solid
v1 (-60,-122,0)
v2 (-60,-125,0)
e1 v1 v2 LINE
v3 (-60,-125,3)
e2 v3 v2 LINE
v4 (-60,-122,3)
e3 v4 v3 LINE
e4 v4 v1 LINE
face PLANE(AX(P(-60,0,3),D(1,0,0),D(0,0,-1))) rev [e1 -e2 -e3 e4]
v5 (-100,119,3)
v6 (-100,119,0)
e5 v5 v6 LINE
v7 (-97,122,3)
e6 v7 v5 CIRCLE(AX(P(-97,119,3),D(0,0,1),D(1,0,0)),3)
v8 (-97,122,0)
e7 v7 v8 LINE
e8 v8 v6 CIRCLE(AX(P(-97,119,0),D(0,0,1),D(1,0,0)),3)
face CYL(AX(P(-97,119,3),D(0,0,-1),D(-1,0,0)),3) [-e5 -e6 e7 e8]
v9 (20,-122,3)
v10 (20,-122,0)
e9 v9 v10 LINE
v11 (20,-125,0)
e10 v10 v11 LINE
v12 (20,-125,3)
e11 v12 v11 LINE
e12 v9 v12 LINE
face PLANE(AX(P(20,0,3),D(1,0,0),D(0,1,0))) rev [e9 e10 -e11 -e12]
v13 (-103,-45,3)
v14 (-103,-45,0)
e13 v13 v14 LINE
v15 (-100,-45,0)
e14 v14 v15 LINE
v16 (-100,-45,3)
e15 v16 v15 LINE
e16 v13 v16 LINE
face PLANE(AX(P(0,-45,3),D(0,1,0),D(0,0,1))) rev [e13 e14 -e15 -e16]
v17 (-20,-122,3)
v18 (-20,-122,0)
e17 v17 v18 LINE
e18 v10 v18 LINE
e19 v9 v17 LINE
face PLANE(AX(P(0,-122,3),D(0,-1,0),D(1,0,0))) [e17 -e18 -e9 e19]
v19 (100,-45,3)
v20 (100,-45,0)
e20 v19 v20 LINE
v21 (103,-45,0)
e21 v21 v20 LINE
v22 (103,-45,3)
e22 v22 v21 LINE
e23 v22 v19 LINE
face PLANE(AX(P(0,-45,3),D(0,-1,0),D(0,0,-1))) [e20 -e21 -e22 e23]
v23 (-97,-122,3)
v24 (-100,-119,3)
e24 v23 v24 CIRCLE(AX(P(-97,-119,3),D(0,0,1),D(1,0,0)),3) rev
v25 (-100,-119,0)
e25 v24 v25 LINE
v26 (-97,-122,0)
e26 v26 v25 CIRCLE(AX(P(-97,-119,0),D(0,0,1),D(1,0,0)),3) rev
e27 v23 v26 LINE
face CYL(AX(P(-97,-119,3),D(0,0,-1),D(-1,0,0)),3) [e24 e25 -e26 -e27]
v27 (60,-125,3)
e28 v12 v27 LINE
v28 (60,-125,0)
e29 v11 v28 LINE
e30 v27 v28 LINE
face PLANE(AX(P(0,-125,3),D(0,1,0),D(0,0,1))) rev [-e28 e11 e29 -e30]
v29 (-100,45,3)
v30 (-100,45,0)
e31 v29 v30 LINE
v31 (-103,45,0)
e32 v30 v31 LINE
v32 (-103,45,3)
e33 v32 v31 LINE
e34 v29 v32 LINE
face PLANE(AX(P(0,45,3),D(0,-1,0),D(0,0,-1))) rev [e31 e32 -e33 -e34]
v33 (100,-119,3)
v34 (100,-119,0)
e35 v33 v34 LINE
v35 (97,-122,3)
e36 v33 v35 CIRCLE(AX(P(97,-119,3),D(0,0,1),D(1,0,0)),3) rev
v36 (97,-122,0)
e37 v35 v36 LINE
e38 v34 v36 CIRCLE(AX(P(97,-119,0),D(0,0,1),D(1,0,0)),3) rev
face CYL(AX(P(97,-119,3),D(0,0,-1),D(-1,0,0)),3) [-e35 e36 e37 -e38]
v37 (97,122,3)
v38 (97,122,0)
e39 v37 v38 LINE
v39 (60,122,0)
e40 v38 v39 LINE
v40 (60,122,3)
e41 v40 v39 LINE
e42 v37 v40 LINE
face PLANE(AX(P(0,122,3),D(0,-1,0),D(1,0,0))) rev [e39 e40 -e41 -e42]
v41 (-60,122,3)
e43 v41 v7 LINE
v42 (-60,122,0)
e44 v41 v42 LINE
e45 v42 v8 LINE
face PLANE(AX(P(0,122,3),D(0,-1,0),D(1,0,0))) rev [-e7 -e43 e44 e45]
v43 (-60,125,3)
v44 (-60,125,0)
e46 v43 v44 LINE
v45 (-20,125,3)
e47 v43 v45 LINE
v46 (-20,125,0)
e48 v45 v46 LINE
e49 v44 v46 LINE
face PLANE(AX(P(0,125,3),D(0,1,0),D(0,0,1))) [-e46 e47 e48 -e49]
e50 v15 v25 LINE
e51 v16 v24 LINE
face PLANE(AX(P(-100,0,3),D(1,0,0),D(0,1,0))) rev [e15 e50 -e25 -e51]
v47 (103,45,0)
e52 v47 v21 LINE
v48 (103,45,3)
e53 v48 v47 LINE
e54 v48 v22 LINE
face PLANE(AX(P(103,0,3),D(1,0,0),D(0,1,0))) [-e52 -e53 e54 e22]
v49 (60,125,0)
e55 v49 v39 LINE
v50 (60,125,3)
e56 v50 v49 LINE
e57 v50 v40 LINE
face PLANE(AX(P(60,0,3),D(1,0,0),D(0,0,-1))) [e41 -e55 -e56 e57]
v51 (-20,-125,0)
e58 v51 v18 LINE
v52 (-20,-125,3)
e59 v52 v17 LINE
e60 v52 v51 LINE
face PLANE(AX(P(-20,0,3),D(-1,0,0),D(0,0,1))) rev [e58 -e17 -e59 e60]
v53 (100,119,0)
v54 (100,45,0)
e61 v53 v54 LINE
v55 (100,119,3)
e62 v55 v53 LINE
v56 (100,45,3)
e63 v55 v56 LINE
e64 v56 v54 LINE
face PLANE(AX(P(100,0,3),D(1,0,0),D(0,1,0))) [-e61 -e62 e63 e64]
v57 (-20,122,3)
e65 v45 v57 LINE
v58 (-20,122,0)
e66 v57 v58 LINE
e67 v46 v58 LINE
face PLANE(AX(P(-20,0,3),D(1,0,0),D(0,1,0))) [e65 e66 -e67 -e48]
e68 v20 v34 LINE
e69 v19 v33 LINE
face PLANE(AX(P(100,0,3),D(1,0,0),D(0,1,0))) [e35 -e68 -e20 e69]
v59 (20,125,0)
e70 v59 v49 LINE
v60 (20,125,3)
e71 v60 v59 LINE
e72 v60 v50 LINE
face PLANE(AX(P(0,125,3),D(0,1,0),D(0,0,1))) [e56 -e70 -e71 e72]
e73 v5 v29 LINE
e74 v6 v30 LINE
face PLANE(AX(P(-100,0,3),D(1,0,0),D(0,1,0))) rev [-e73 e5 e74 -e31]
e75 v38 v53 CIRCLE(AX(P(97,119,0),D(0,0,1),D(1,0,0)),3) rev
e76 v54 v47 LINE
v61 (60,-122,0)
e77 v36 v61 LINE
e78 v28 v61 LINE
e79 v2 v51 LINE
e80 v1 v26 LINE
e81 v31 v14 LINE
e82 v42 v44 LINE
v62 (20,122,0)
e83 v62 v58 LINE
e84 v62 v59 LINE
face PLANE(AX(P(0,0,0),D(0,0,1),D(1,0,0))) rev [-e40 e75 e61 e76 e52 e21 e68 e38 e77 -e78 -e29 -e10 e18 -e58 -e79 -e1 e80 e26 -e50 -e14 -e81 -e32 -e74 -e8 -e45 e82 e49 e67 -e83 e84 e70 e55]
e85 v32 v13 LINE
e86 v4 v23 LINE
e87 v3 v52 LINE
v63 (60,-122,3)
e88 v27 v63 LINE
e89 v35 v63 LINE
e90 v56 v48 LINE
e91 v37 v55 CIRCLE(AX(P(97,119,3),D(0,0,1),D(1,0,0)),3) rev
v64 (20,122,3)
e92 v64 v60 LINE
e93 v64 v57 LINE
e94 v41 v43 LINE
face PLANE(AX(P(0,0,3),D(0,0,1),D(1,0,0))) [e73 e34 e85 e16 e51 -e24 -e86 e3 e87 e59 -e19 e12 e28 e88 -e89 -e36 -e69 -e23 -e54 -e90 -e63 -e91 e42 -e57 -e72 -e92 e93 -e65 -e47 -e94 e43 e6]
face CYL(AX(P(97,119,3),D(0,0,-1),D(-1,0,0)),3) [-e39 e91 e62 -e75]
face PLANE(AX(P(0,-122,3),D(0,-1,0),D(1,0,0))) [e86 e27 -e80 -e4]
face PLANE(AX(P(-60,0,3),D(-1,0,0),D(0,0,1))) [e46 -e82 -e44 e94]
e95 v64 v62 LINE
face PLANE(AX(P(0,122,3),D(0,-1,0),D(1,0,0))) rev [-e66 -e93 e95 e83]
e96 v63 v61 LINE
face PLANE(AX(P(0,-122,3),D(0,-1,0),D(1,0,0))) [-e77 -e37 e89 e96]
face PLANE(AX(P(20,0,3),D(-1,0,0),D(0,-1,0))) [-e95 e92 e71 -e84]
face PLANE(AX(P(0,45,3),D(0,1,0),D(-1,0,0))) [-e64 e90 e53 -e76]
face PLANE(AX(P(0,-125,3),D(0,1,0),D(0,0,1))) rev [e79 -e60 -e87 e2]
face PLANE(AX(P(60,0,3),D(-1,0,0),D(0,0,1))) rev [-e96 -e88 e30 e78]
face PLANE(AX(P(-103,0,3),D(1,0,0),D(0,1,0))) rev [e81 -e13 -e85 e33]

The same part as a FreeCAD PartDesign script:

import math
import FreeCAD as App
import Part
import Sketcher
from FreeCAD import Vector
Q = App.Units.Quantity

doc = App.newDocument("Part")
body = doc.addObject("PartDesign::Body", "Body")

# Sketch on XY plane
sketch1 = doc.addObject("Sketcher::SketchObject", "Sketch")
body.addObject(sketch1)
sketch1.AttachmentSupport = (doc.XY_Plane, [""])
sketch1.MapMode = "FlatFace"
sketch1.addGeometry([
    Part.LineSegment(Vector(97, 122, 0), Vector(60, 122, 0)),  # 0
    Part.LineSegment(Vector(60, 122, 0), Vector(60, 125, 0)),  # 1
    Part.LineSegment(Vector(60, 125, 0), Vector(20, 125, 0)),  # 2
    Part.LineSegment(Vector(20, 125, 0), Vector(20, 122, 0)),  # 3
    Part.LineSegment(Vector(20, 122, 0), Vector(-20, 122, 0)),  # 4
    Part.LineSegment(Vector(-20, 122, 0), Vector(-20, 125, 0)),  # 5
    Part.LineSegment(Vector(-20, 125, 0), Vector(-60, 125, 0)),  # 6
    Part.LineSegment(Vector(-60, 125, 0), Vector(-60, 122, 0)),  # 7
    Part.LineSegment(Vector(-60, 122, 0), Vector(-97, 122, 0)),  # 8
    Part.ArcOfCircle(Part.Circle(Vector(-97, 119, 0), Vector(0, 0, 1), 3), math.radians(90), math.radians(180)),  # 9
    Part.LineSegment(Vector(-100, 119, 0), Vector(-100, 45, 0)),  # 10
    Part.LineSegment(Vector(-100, 45, 0), Vector(-103, 45, 0)),  # 11
    Part.LineSegment(Vector(-103, 45, 0), Vector(-103, -45, 0)),  # 12
    Part.LineSegment(Vector(-103, -45, 0), Vector(-100, -45, 0)),  # 13
    Part.LineSegment(Vector(-100, -45, 0), Vector(-100, -119, 0)),  # 14
    Part.ArcOfCircle(Part.Circle(Vector(-97, -119, 0), Vector(0, 0, 1), 3), math.radians(180), math.radians(270)),  # 15
    Part.LineSegment(Vector(-97, -122, 0), Vector(-60, -122, 0)),  # 16
    Part.LineSegment(Vector(-60, -122, 0), Vector(-60, -125, 0)),  # 17
    Part.LineSegment(Vector(-60, -125, 0), Vector(-20, -125, 0)),  # 18
    Part.LineSegment(Vector(-20, -125, 0), Vector(-20, -122, 0)),  # 19
    Part.LineSegment(Vector(-20, -122, 0), Vector(20, -122, 0)),  # 20
    Part.LineSegment(Vector(20, -122, 0), Vector(20, -125, 0)),  # 21
    Part.LineSegment(Vector(20, -125, 0), Vector(60, -125, 0)),  # 22
    Part.LineSegment(Vector(60, -125, 0), Vector(60, -122, 0)),  # 23
    Part.LineSegment(Vector(60, -122, 0), Vector(97, -122, 0)),  # 24
    Part.ArcOfCircle(Part.Circle(Vector(97, -119, 0), Vector(0, 0, 1), 3), math.radians(-90), math.radians(0)),  # 25
    Part.LineSegment(Vector(100, -119, 0), Vector(100, -45, 0)),  # 26
    Part.LineSegment(Vector(100, -45, 0), Vector(103, -45, 0)),  # 27
    Part.LineSegment(Vector(103, -45, 0), Vector(103, 45, 0)),  # 28
    Part.LineSegment(Vector(103, 45, 0), Vector(100, 45, 0)),  # 29
    Part.LineSegment(Vector(100, 45, 0), Vector(100, 119, 0)),  # 30
    Part.ArcOfCircle(Part.Circle(Vector(97, 119, 0), Vector(0, 0, 1), 3), math.radians(0), math.radians(90)),  # 31
], False)
sketch1.addConstraint([
    Sketcher.Constraint("Coincident", 0, 2, 1, 1),
    Sketcher.Constraint("Coincident", 1, 2, 2, 1),
    Sketcher.Constraint("Coincident", 2, 2, 3, 1),
    Sketcher.Constraint("Coincident", 3, 2, 4, 1),
    Sketcher.Constraint("Coincident", 4, 2, 5, 1),
    Sketcher.Constraint("Coincident", 5, 2, 6, 1),
    Sketcher.Constraint("Coincident", 6, 2, 7, 1),
    Sketcher.Constraint("Coincident", 7, 2, 8, 1),
    Sketcher.Constraint("Tangent", 8, 2, 9, 1),
    Sketcher.Constraint("Tangent", 9, 2, 10, 1),
    Sketcher.Constraint("Coincident", 10, 2, 11, 1),
    Sketcher.Constraint("Coincident", 11, 2, 12, 1),
    Sketcher.Constraint("Coincident", 12, 2, 13, 1),
    Sketcher.Constraint("Coincident", 13, 2, 14, 1),
    Sketcher.Constraint("Tangent", 14, 2, 15, 1),
    Sketcher.Constraint("Tangent", 15, 2, 16, 1),
    Sketcher.Constraint("Coincident", 16, 2, 17, 1),
    Sketcher.Constraint("Coincident", 17, 2, 18, 1),
    Sketcher.Constraint("Coincident", 18, 2, 19, 1),
    Sketcher.Constraint("Coincident", 19, 2, 20, 1),
    Sketcher.Constraint("Coincident", 20, 2, 21, 1),
    Sketcher.Constraint("Coincident", 21, 2, 22, 1),
    Sketcher.Constraint("Coincident", 22, 2, 23, 1),
    Sketcher.Constraint("Coincident", 23, 2, 24, 1),
    Sketcher.Constraint("Tangent", 24, 2, 25, 1),
    Sketcher.Constraint("Tangent", 25, 2, 26, 1),
    Sketcher.Constraint("Coincident", 26, 2, 27, 1),
    Sketcher.Constraint("Coincident", 27, 2, 28, 1),
    Sketcher.Constraint("Coincident", 28, 2, 29, 1),
    Sketcher.Constraint("Coincident", 29, 2, 30, 1),
    Sketcher.Constraint("Tangent", 30, 2, 31, 1),
    Sketcher.Constraint("Tangent", 31, 2, 0, 1),
    Sketcher.Constraint("Horizontal", 0),
    Sketcher.Constraint("Vertical", 1),
    Sketcher.Constraint("Horizontal", 2),
    Sketcher.Constraint("Vertical", 3),
    Sketcher.Constraint("Horizontal", 4),
    Sketcher.Constraint("Vertical", 5),
    Sketcher.Constraint("Horizontal", 6),
    Sketcher.Constraint("Vertical", 7),
    Sketcher.Constraint("Horizontal", 8),
    Sketcher.Constraint("Vertical", 10),
    Sketcher.Constraint("Horizontal", 11),
    Sketcher.Constraint("Vertical", 12),
    Sketcher.Constraint("Horizontal", 13),
    Sketcher.Constraint("Vertical", 14),
    Sketcher.Constraint("Horizontal", 16),
    Sketcher.Constraint("Vertical", 17),
    Sketcher.Constraint("Horizontal", 18),
    Sketcher.Constraint("Vertical", 19),
    Sketcher.Constraint("Horizontal", 20),
    Sketcher.Constraint("Vertical", 21),
    Sketcher.Constraint("Horizontal", 22),
    Sketcher.Constraint("Vertical", 23),
    Sketcher.Constraint("Horizontal", 24),
    Sketcher.Constraint("Vertical", 26),
    Sketcher.Constraint("Horizontal", 27),
    Sketcher.Constraint("Vertical", 28),
    Sketcher.Constraint("Horizontal", 29),
    Sketcher.Constraint("Vertical", 30),
    Sketcher.Constraint("Equal", 9, 15),
    Sketcher.Constraint("Equal", 15, 25),
    Sketcher.Constraint("Equal", 25, 31),
    Sketcher.Constraint("Symmetric", 9, 3, 25, 3, -1, 1),
    Sketcher.Constraint("Symmetric", 15, 3, 31, 3, -1, 1),
    Sketcher.Constraint("Symmetric", 1, 2, 17, 2, -1, 1),
    Sketcher.Constraint("Symmetric", 3, 2, 19, 2, -1, 1),
    Sketcher.Constraint("Symmetric", 5, 2, 21, 2, -1, 1),
    Sketcher.Constraint("Symmetric", 11, 2, 27, 2, -1, 1),
    Sketcher.Constraint("Symmetric", 15, 3, 25, 3, -2),
    Sketcher.Constraint("Symmetric", 2, 2, 5, 2, -2),
    Sketcher.Constraint("Horizontal", 0, 2, 3, 2),
    Sketcher.Constraint("Horizontal", 13, 2, 26, 2),
    Sketcher.Constraint("Horizontal", 11, 2, 28, 2),
    Sketcher.Constraint("Vertical", 7, 2, 16, 2),
    Sketcher.Constraint("Vertical", 1, 2, 22, 2),
    Sketcher.Constraint("Equal", 2, 4),
    Sketcher.Constraint("Equal", 29, 1),
    Sketcher.Constraint("Radius", 9, Q("3 mm")),
    Sketcher.Constraint("DistanceX", 0, 2, 0, 1, Q("37 mm")),
    Sketcher.Constraint("DistanceX", 2, 2, 2, 1, Q("40 mm")),
    Sketcher.Constraint("DistanceX", 11, 2, 11, 1, Q("3 mm")),
    Sketcher.Constraint("DistanceY", 10, 2, 10, 1, Q("74 mm")),
    Sketcher.Constraint("DistanceY", 12, 2, 12, 1, Q("90 mm")),
])
pad1 = doc.addObject("PartDesign::Pad", "Pad")
body.addObject(pad1)
pad1.Profile = sketch1
pad1.Length = 3

doc.recompute()
